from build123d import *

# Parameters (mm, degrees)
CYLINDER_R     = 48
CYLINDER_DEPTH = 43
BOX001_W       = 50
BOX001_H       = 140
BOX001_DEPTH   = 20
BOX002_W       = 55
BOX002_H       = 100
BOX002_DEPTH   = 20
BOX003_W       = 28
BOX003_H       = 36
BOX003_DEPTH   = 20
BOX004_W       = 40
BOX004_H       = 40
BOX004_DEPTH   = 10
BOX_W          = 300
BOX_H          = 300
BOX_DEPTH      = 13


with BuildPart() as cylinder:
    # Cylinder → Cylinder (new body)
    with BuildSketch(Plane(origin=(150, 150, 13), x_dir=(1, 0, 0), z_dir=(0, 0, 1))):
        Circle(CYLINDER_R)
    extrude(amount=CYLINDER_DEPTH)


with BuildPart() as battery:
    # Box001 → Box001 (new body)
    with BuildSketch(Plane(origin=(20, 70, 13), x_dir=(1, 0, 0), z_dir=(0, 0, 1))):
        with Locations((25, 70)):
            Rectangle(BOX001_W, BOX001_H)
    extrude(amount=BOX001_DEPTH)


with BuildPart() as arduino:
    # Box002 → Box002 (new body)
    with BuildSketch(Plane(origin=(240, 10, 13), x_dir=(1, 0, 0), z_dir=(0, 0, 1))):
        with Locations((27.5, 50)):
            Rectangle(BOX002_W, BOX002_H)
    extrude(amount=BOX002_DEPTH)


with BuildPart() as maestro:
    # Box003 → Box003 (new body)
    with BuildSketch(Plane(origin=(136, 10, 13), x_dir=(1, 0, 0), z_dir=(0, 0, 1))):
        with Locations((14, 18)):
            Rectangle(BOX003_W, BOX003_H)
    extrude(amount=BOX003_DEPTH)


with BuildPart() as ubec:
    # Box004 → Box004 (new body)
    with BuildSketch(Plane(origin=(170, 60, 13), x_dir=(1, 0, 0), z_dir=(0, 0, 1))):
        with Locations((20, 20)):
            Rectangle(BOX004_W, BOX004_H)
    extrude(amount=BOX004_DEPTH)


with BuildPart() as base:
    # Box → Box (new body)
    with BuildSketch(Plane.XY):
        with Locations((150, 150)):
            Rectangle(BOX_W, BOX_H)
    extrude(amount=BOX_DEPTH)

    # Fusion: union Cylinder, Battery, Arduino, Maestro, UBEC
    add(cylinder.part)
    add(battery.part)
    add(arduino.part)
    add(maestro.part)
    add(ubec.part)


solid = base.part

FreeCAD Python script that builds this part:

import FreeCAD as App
import Part
import Sketcher

V = App.Vector
Q = App.Units.Quantity

doc = App.newDocument("Part")
body = doc.addObject("PartDesign::Body", "Body")

# Sketch on XY plane
sketch1 = body.newObject("Sketcher::SketchObject", "Sketch")
sketch1.AttachmentSupport = (doc.getObject("XY_Plane"), [""])
sketch1.MapMode = "FlatFace"
sketch1.AttachmentOffset = App.Placement(V(0, 0, 13), App.Rotation())
sketch1.addGeometry(Part.Circle(V(150, 150, 0), V(0, 0, 1), 48), False)
sketch1.addConstraint(Sketcher.Constraint("Diameter", 0, Q("96 mm")))
sketch1.addConstraint(Sketcher.Constraint("DistanceX", -1, 1, 0, 3, Q("150 mm")))
sketch1.addConstraint(Sketcher.Constraint("DistanceY", -1, 1, 0, 3, Q("150 mm")))
pad1 = body.newObject("PartDesign::Pad", "Pad")
pad1.Profile = sketch1
pad1.Length = 43
body2 = doc.addObject("PartDesign::Body", "Body001")

# Sketch on XY plane
sketch2 = body2.newObject("Sketcher::SketchObject", "Sketch001")
sketch2.AttachmentSupport = (doc.getObject("XY_Plane001"), [""])
sketch2.MapMode = "FlatFace"
sketch2.AttachmentOffset = App.Placement(V(0, 0, 13), App.Rotation())
sketch2.addGeometry(Part.LineSegment(V(20, 210, 0), V(20, 70, 0)), False)
sketch2.addGeometry(Part.LineSegment(V(20, 70, 0), V(70, 70, 0)), False)
sketch2.addGeometry(Part.LineSegment(V(70, 70, 0), V(70, 210, 0)), False)
sketch2.addGeometry(Part.LineSegment(V(70, 210, 0), V(20, 210, 0)), False)
sketch2.addConstraint(Sketcher.Constraint("Coincident", 0, 2, 1, 1))
sketch2.addConstraint(Sketcher.Constraint("Coincident", 1, 2, 2, 1))
sketch2.addConstraint(Sketcher.Constraint("Coincident", 2, 2, 3, 1))
sketch2.addConstraint(Sketcher.Constraint("Coincident", 3, 2, 0, 1))
sketch2.addConstraint(Sketcher.Constraint("Vertical", 0))
sketch2.addConstraint(Sketcher.Constraint("Horizontal", 1))
sketch2.addConstraint(Sketcher.Constraint("Vertical", 2))
sketch2.addConstraint(Sketcher.Constraint("Horizontal", 3))
sketch2.addConstraint(Sketcher.Constraint("DistanceX", 1, 1, 1, 2, Q("50 mm")))
sketch2.addConstraint(Sketcher.Constraint("DistanceY", 0, 2, 0, 1, Q("140 mm")))
sketch2.addConstraint(Sketcher.Constraint("DistanceX", -1, 1, 0, 2, Q("20 mm")))
sketch2.addConstraint(Sketcher.Constraint("DistanceY", -1, 1, 0, 2, Q("70 mm")))
pad2 = body2.newObject("PartDesign::Pad", "Pad001")
pad2.Profile = sketch2
pad2.Length = 20
body3 = doc.addObject("PartDesign::Body", "Body002")

# Sketch on XY plane
sketch3 = body3.newObject("Sketcher::SketchObject", "Sketch002")
sketch3.AttachmentSupport = (doc.getObject("XY_Plane002"), [""])
sketch3.MapMode = "FlatFace"
sketch3.AttachmentOffset = App.Placement(V(0, 0, 13), App.Rotation())
sketch3.addGeometry(Part.LineSegment(V(240, 110, 0), V(240, 10, 0)), False)
sketch3.addGeometry(Part.LineSegment(V(240, 10, 0), V(295, 10, 0)), False)
sketch3.addGeometry(Part.LineSegment(V(295, 10, 0), V(295, 110, 0)), False)
sketch3.addGeometry(Part.LineSegment(V(295, 110, 0), V(240, 110, 0)), False)
sketch3.addConstraint(Sketcher.Constraint("Coincident", 0, 2, 1, 1))
sketch3.addConstraint(Sketcher.Constraint("Coincident", 1, 2, 2, 1))
sketch3.addConstraint(Sketcher.Constraint("Coincident", 2, 2, 3, 1))
sketch3.addConstraint(Sketcher.Constraint("Coincident", 3, 2, 0, 1))
sketch3.addConstraint(Sketcher.Constraint("Vertical", 0))
sketch3.addConstraint(Sketcher.Constraint("Horizontal", 1))
sketch3.addConstraint(Sketcher.Constraint("Vertical", 2))
sketch3.addConstraint(Sketcher.Constraint("Horizontal", 3))
sketch3.addConstraint(Sketcher.Constraint("DistanceX", 1, 1, 1, 2, Q("55 mm")))
sketch3.addConstraint(Sketcher.Constraint("DistanceY", 0, 2, 0, 1, Q("100 mm")))
sketch3.addConstraint(Sketcher.Constraint("DistanceX", -1, 1, 0, 2, Q("240 mm")))
sketch3.addConstraint(Sketcher.Constraint("DistanceY", -1, 1, 0, 2, Q("10 mm")))
pad3 = body3.newObject("PartDesign::Pad", "Pad002")
pad3.Profile = sketch3
pad3.Length = 20
body4 = doc.addObject("PartDesign::Body", "Body003")

# Sketch on XY plane
sketch4 = body4.newObject("Sketcher::SketchObject", "Sketch003")
sketch4.AttachmentSupport = (doc.getObject("XY_Plane003"), [""])
sketch4.MapMode = "FlatFace"
sketch4.AttachmentOffset = App.Placement(V(0, 0, 13), App.Rotation())
sketch4.addGeometry(Part.LineSegment(V(136, 46, 0), V(136, 10, 0)), False)
sketch4.addGeometry(Part.LineSegment(V(136, 10, 0), V(164, 10, 0)), False)
sketch4.addGeometry(Part.LineSegment(V(164, 10, 0), V(164, 46, 0)), False)
sketch4.addGeometry(Part.LineSegment(V(164, 46, 0), V(136, 46, 0)), False)
sketch4.addConstraint(Sketcher.Constraint("Coincident", 0, 2, 1, 1))
sketch4.addConstraint(Sketcher.Constraint("Coincident", 1, 2, 2, 1))
sketch4.addConstraint(Sketcher.Constraint("Coincident", 2, 2, 3, 1))
sketch4.addConstraint(Sketcher.Constraint("Coincident", 3, 2, 0, 1))
sketch4.addConstraint(Sketcher.Constraint("Vertical", 0))
sketch4.addConstraint(Sketcher.Constraint("Horizontal", 1))
sketch4.addConstraint(Sketcher.Constraint("Vertical", 2))
sketch4.addConstraint(Sketcher.Constraint("Horizontal", 3))
sketch4.addConstraint(Sketcher.Constraint("DistanceX", 1, 1, 1, 2, Q("28 mm")))
sketch4.addConstraint(Sketcher.Constraint("DistanceY", 0, 2, 0, 1, Q("36 mm")))
sketch4.addConstraint(Sketcher.Constraint("DistanceX", -1, 1, 0, 2, Q("136 mm")))
sketch4.addConstraint(Sketcher.Constraint("DistanceY", -1, 1, 0, 2, Q("10 mm")))
pad4 = body4.newObject("PartDesign::Pad", "Pad003")
pad4.Profile = sketch4
pad4.Length = 20
body5 = doc.addObject("PartDesign::Body", "Body004")

# Sketch on XY plane
sketch5 = body5.newObject("Sketcher::SketchObject", "Sketch004")
sketch5.AttachmentSupport = (doc.getObject("XY_Plane004"), [""])
sketch5.MapMode = "FlatFace"
sketch5.AttachmentOffset = App.Placement(V(0, 0, 13), App.Rotation())
sketch5.addGeometry(Part.LineSegment(V(170, 100, 0), V(170, 60, 0)), False)
sketch5.addGeometry(Part.LineSegment(V(170, 60, 0), V(210, 60, 0)), False)
sketch5.addGeometry(Part.LineSegment(V(210, 60, 0), V(210, 100, 0)), False)
sketch5.addGeometry(Part.LineSegment(V(210, 100, 0), V(170, 100, 0)), False)
sketch5.addConstraint(Sketcher.Constraint("Coincident", 0, 2, 1, 1))
sketch5.addConstraint(Sketcher.Constraint("Coincident", 1, 2, 2, 1))
sketch5.addConstraint(Sketcher.Constraint("Coincident", 2, 2, 3, 1))
sketch5.addConstraint(Sketcher.Constraint("Coincident", 3, 2, 0, 1))
sketch5.addConstraint(Sketcher.Constraint("Vertical", 0))
sketch5.addConstraint(Sketcher.Constraint("Horizontal", 1))
sketch5.addConstraint(Sketcher.Constraint("Vertical", 2))
sketch5.addConstraint(Sketcher.Constraint("Horizontal", 3))
sketch5.addConstraint(Sketcher.Constraint("Equal", 3, 0))
sketch5.addConstraint(Sketcher.Constraint("DistanceX", 1, 1, 1, 2, Q("40 mm")))
sketch5.addConstraint(Sketcher.Constraint("DistanceX", -1, 1, 0, 2, Q("170 mm")))
sketch5.addConstraint(Sketcher.Constraint("DistanceY", -1, 1, 0, 2, Q("60 mm")))
pad5 = body5.newObject("PartDesign::Pad", "Pad004")
pad5.Profile = sketch5
pad5.Length = 10
body6 = doc.addObject("PartDesign::Body", "Body005")

# Sketch on XY plane
sketch6 = body6.newObject("Sketcher::SketchObject", "Sketch005")
sketch6.AttachmentSupport = (doc.getObject("XY_Plane005"), [""])
sketch6.MapMode = "FlatFace"
sketch6.addGeometry(Part.LineSegment(V(0, 300, 0), V(0, 0, 0)), False)
sketch6.addGeometry(Part.LineSegment(V(0, 0, 0), V(300, 0, 0)), False)
sketch6.addGeometry(Part.LineSegment(V(300, 0, 0), V(300, 300, 0)), False)
sketch6.addGeometry(Part.LineSegment(V(300, 300, 0), V(0, 300, 0)), False)
sketch6.addConstraint(Sketcher.Constraint("Coincident", 0, 2, 1, 1))
sketch6.addConstraint(Sketcher.Constraint("Coincident", 1, 2, 2, 1))
sketch6.addConstraint(Sketcher.Constraint("Coincident", 2, 2, 3, 1))
sketch6.addConstraint(Sketcher.Constraint("Coincident", 3, 2, 0, 1))
sketch6.addConstraint(Sketcher.Constraint("Vertical", 0))
sketch6.addConstraint(Sketcher.Constraint("Horizontal", 1))
sketch6.addConstraint(Sketcher.Constraint("Vertical", 2))
sketch6.addConstraint(Sketcher.Constraint("Horizontal", 3))
sketch6.addConstraint(Sketcher.Constraint("Coincident", 0, 2, -1, 1))
sketch6.addConstraint(Sketcher.Constraint("Equal", 3, 0))
sketch6.addConstraint(Sketcher.Constraint("DistanceX", 1, 1, 1, 2, Q("300 mm")))
pad6 = body6.newObject("PartDesign::Pad", "Pad005")
pad6.Profile = sketch6
pad6.Length = 13
doc.recompute()

boolean = body6.newObject("PartDesign::Boolean", "Boolean")
boolean.Type = "Fuse"
boolean.addObjects([body])
doc.recompute()

boolean2 = body6.newObject("PartDesign::Boolean", "Boolean001")
boolean2.Type = "Fuse"
boolean2.addObjects([body2])
doc.recompute()

boolean3 = body6.newObject("PartDesign::Boolean", "Boolean002")
boolean3.Type = "Fuse"
boolean3.addObjects([body3])
doc.recompute()

boolean4 = body6.newObject("PartDesign::Boolean", "Boolean003")
boolean4.Type = "Fuse"
boolean4.addObjects([body4])
doc.recompute()

boolean5 = body6.newObject("PartDesign::Boolean", "Boolean004")
boolean5.Type = "Fuse"
boolean5.addObjects([body5])

doc.recompute()
